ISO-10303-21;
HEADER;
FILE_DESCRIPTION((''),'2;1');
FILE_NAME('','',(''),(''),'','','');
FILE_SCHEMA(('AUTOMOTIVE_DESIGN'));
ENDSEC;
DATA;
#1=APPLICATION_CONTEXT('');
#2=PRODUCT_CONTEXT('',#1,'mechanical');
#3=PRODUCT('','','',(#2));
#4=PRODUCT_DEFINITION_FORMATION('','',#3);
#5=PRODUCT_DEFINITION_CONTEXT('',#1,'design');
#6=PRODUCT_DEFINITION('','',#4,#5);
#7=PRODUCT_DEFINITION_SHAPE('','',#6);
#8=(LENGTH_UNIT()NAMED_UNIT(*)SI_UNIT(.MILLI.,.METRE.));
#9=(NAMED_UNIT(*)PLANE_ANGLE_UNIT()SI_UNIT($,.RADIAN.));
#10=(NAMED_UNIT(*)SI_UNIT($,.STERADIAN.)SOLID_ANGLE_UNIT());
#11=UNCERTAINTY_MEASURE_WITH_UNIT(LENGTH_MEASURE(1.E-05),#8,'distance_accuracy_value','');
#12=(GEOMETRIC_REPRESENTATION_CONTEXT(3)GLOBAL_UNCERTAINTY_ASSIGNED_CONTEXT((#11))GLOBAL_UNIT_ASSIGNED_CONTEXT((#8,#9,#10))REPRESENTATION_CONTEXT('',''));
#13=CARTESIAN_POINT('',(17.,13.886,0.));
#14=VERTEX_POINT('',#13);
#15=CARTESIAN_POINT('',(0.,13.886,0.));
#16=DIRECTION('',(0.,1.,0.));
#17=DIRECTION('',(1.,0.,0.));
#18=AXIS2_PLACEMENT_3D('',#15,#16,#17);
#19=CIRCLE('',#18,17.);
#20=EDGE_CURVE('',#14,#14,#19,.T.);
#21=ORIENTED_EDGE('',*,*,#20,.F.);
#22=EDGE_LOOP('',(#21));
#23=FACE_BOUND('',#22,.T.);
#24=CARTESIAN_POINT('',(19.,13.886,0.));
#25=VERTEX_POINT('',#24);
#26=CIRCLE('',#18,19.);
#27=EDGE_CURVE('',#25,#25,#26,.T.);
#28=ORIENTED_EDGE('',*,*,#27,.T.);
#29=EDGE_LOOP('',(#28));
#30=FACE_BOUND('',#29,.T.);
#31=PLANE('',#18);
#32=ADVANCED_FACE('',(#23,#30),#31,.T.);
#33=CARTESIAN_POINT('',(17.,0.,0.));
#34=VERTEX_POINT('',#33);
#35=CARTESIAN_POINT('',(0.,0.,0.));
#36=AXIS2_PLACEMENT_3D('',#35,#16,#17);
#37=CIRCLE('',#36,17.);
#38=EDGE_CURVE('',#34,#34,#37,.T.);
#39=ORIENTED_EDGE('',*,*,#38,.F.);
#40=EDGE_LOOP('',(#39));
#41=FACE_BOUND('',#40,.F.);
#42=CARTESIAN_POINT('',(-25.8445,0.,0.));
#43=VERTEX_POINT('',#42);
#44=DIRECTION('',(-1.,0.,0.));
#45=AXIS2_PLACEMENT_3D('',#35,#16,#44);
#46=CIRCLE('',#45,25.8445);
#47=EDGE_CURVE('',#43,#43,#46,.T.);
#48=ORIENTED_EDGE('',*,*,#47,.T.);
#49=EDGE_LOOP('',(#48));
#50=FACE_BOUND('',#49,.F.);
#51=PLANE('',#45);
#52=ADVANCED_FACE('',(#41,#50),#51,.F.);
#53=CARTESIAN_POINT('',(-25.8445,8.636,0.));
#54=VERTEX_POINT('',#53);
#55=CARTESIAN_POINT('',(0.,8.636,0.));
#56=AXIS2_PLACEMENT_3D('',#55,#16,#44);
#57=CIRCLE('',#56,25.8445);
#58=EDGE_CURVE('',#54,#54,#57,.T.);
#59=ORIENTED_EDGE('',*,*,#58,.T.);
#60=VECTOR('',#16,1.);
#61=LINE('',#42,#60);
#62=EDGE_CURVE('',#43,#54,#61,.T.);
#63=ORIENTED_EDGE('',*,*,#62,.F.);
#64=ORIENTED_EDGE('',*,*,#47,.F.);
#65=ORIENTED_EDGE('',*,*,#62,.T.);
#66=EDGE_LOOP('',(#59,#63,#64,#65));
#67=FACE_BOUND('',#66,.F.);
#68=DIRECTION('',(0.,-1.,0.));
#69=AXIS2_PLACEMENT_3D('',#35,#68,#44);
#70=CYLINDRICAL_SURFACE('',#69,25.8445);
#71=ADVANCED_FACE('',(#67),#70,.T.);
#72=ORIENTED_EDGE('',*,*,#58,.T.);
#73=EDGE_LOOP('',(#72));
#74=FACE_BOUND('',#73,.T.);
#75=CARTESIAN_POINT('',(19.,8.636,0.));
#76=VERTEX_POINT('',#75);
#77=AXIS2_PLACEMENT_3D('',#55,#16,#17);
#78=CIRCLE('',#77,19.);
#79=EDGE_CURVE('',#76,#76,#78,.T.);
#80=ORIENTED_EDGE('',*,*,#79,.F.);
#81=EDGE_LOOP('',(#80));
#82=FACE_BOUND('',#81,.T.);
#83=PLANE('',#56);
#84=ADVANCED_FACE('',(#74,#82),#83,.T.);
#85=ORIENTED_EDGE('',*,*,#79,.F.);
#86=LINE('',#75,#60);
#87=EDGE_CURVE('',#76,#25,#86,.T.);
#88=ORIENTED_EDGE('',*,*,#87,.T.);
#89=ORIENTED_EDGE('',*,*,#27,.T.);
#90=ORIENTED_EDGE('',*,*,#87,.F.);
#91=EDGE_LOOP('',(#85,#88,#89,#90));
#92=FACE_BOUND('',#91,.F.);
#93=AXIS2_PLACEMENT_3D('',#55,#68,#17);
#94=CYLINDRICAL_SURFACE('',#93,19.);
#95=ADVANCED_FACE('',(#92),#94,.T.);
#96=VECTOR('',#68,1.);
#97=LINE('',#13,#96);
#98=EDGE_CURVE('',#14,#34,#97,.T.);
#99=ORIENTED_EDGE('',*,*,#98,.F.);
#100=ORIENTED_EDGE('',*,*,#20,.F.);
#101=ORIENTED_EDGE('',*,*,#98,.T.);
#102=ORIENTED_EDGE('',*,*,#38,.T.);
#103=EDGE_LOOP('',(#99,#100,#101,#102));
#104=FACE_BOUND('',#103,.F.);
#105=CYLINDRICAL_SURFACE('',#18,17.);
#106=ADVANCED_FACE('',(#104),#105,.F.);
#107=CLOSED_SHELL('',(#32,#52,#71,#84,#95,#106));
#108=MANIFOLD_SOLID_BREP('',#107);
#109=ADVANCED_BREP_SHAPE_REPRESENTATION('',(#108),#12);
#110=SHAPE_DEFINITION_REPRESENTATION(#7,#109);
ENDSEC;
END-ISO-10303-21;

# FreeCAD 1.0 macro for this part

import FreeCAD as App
import Part
import Sketcher
from FreeCAD import Vector
Q = App.Units.Quantity

doc = App.newDocument("Part")
params = doc.addObject("Spreadsheet::Sheet", "Params")
for row, (alias, value) in enumerate([
    ("pad1_length", "8.636 mm"),
    ("sketch2_diameter", "38 mm"),
    ("pad2_length", "5.25 mm"),
    ("sketch3_diameter", "34 mm"),
], start=1):
    params.set(f"A{row}", alias)
    params.set(f"B{row}", "=" + value)
    params.setAlias(f"B{row}", alias)

body = doc.addObject("PartDesign::Body", "Body")

# Sketch on XZ plane
sketch1 = body.newObject("Sketcher::SketchObject", "Sketch")
sketch1.AttachmentSupport = (doc.getObject("XZ_Plane"), [""])
sketch1.MapMode = "FlatFace"
sketch1.addGeometry(Part.Circle(Vector(0, 0, 0), Vector(0, 0, 1), 26), False)
sketch1.addConstraint(Sketcher.Constraint("Coincident", 0, 3, -1, 1))
sketch1.addConstraint(Sketcher.Constraint("Diameter", 0, Q("51.689 mm")))
pad1 = body.newObject("PartDesign::Pad", "Pad")
pad1.Profile = sketch1
pad1.setExpression("Length", "Params.pad1_length")
pad1.Reversed = True

# Sketch on XZ plane
sketch2 = body.newObject("Sketcher::SketchObject", "Sketch001")
sketch2.AttachmentSupport = (doc.getObject("XZ_Plane"), [""])
sketch2.MapMode = "FlatFace"
sketch2.AttachmentOffset = App.Placement(Vector(0, 0, -8.636), App.Rotation())
sketch2.addGeometry(Part.Circle(Vector(0, 0, 0), Vector(0, 0, 1), 19), False)
sketch2.addConstraint(Sketcher.Constraint("Coincident", 0, 3, -1, 1))
sketch2.addConstraint(Sketcher.Constraint("Diameter", 0, Q("38 mm")))
sketch2.setExpression("Constraints[1]", "Params.sketch2_diameter")
pad2 = body.newObject("PartDesign::Pad", "Pad001")
pad2.Profile = sketch2
pad2.setExpression("Length", "Params.pad2_length")
pad2.Reversed = True

# Sketch on XZ plane
sketch3 = body.newObject("Sketcher::SketchObject", "Sketch002")
sketch3.AttachmentSupport = (doc.getObject("XZ_Plane"), [""])
sketch3.MapMode = "FlatFace"
sketch3.AttachmentOffset = App.Placement(Vector(0, 0, -13.886), App.Rotation())
sketch3.addGeometry(Part.Circle(Vector(0, 0, 0), Vector(0, 0, 1), 17), False)
sketch3.addConstraint(Sketcher.Constraint("Coincident", 0, 3, -1, 1))
sketch3.addConstraint(Sketcher.Constraint("Diameter", 0, Q("34 mm")))
sketch3.setExpression("Constraints[1]", "Params.sketch3_diameter")
pocket1 = body.newObject("PartDesign::Pocket", "Pocket")
pocket1.Profile = sketch3
pocket1.Type = "ThroughAll"
pocket1.Reversed = True

doc.recompute()
